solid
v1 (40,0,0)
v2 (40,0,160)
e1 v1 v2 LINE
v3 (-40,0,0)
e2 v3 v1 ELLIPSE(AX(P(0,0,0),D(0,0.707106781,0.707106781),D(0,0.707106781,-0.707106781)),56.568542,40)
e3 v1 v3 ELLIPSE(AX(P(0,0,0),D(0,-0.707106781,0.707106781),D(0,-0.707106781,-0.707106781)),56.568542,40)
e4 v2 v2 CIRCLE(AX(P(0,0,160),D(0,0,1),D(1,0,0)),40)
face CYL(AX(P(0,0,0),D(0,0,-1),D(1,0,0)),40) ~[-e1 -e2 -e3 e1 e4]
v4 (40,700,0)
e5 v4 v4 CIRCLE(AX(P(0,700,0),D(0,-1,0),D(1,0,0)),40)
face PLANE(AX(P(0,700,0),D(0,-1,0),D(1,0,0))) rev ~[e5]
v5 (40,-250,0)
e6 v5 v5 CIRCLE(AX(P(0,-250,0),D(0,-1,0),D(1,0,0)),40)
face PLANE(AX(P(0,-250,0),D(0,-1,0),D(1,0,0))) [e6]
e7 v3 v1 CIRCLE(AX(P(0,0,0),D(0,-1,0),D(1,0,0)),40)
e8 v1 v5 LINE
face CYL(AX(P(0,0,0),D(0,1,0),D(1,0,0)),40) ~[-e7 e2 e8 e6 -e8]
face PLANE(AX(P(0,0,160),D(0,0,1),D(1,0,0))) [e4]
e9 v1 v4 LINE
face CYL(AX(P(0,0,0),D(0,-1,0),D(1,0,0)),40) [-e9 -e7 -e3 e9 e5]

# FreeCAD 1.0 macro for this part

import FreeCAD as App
import Part
import Sketcher
from FreeCAD import Vector
Q = App.Units.Quantity

doc = App.newDocument("Part")
body = doc.addObject("PartDesign::Body", "Body")

# Sketch on XZ plane
sketch1 = doc.addObject("Sketcher::SketchObject", "Sketch")
body.addObject(sketch1)
sketch1.AttachmentSupport = (doc.XZ_Plane, [""])
sketch1.MapMode = "FlatFace"
sketch1.addGeometry(Part.Circle(Vector(0, 0, 0), Vector(0, 0, 1), 40), False)
sketch1.addConstraint([
    Sketcher.Constraint("Coincident", 0, 3, -1, 1),
    Sketcher.Constraint("Diameter", 0, Q("80 mm")),
])
pad1 = doc.addObject("PartDesign::Pad", "Pad")
body.addObject(pad1)
pad1.Profile = sketch1
pad1.Type = "TwoLengths"
pad1.Length = 700
pad1.Length2 = 250
pad1.Reversed = True

# Sketch on XY plane
sketch2 = doc.addObject("Sketcher::SketchObject", "Sketch001")
body.addObject(sketch2)
sketch2.AttachmentSupport = (doc.XY_Plane, [""])
sketch2.MapMode = "FlatFace"
sketch2.addGeometry(Part.Circle(Vector(0, 0, 0), Vector(0, 0, 1), 40), False)
sketch2.addConstraint([
    Sketcher.Constraint("Coincident", 0, 3, -1, 1),
    Sketcher.Constraint("Diameter", 0, Q("80 mm")),
])
pad2 = doc.addObject("PartDesign::Pad", "Pad001")
body.addObject(pad2)
pad2.Profile = sketch2
pad2.Length = 160

doc.recompute()
